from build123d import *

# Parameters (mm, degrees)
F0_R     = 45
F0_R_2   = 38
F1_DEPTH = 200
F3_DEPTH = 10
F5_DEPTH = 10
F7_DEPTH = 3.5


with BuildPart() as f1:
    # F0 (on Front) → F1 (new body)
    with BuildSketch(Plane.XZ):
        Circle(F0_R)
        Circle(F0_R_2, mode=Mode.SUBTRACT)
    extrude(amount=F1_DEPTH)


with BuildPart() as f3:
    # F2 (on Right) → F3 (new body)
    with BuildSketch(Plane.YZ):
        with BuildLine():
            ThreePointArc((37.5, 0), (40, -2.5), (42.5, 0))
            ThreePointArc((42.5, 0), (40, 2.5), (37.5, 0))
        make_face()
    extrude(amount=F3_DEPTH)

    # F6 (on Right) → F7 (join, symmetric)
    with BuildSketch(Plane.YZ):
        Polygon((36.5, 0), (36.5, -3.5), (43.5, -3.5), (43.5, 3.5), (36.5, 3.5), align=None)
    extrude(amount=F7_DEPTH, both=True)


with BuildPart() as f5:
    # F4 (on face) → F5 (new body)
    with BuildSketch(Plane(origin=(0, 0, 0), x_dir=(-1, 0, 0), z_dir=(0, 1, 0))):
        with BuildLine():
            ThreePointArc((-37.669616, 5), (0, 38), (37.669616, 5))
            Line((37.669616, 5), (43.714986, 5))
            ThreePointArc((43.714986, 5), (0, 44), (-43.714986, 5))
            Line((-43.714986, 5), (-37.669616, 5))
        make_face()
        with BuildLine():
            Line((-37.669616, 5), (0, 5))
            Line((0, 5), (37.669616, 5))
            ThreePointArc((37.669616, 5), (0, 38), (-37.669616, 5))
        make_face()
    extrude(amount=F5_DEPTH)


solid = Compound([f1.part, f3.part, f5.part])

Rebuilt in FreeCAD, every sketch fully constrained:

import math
import FreeCAD as App
import Part
import Sketcher

V = App.Vector


def add_polygon(sketch, points):
    """Adds a closed chain of lines whose ends are joined by coincident constraints."""
    first, n = sketch.GeometryCount, len(points)
    for a, b in zip(points, points[1:] + points[:1]):
        sketch.addGeometry(Part.LineSegment(App.Vector(*a, 0), App.Vector(*b, 0)), False)
    for i in range(n):
        sketch.addConstraint(Sketcher.Constraint("Coincident", first + i, 2, first + (i + 1) % n, 1))

doc = App.newDocument("Part")
body = doc.addObject("PartDesign::Body", "Body")

# Sketch on XZ plane
sketch1 = body.newObject("Sketcher::SketchObject", "Sketch")
sketch1.AttachmentSupport = (doc.getObject("XZ_Plane"), [""])
sketch1.MapMode = "FlatFace"
sketch1.addGeometry(Part.Circle(V(0, 0, 0), V(0, 0, 1), 45), False)
sketch1.addGeometry(Part.Circle(V(0, 0, 0), V(0, 0, 1), 38), False)
sketch1.addConstraint(Sketcher.Constraint("Coincident", 0, 3, -1, 1))
sketch1.addConstraint(Sketcher.Constraint("Coincident", 1, 3, -1, 1))
sketch1.addConstraint(Sketcher.Constraint("Diameter", 0, 90.0))
sketch1.addConstraint(Sketcher.Constraint("Diameter", 1, 76.0))
pad1 = body.newObject("PartDesign::Pad", "Pad")
pad1.Profile = sketch1
pad1.Length = 200
body2 = doc.addObject("PartDesign::Body", "Body001")

# Sketch on YZ plane
sketch2 = body2.newObject("Sketcher::SketchObject", "Sketch001")
sketch2.AttachmentSupport = (doc.getObject("YZ_Plane001"), [""])
sketch2.MapMode = "FlatFace"
sketch2.addGeometry(Part.Circle(V(40, 0, 0), V(0, 0, 1), 2.5), False)
sketch2.addConstraint(Sketcher.Constraint("PointOnObject", 0, 3, -1))
sketch2.addConstraint(Sketcher.Constraint("Diameter", 0, 5.0))
sketch2.addConstraint(Sketcher.Constraint("DistanceX", -1, 1, 0, 3, 40.0))
pad2 = body2.newObject("PartDesign::Pad", "Pad001")
pad2.Profile = sketch2
pad2.Length = 10

# Sketch on YZ plane
sketch3 = body2.newObject("Sketcher::SketchObject", "Sketch002")
sketch3.AttachmentSupport = (doc.getObject("YZ_Plane001"), [""])
sketch3.MapMode = "FlatFace"
add_polygon(sketch3, [(36, -4), (44, -4), (44, 4), (36, 4)])  # lines 0-3
sketch3.addConstraint(Sketcher.Constraint("Horizontal", 0))
sketch3.addConstraint(Sketcher.Constraint("Vertical", 1))
sketch3.addConstraint(Sketcher.Constraint("Horizontal", 2))
sketch3.addConstraint(Sketcher.Constraint("Vertical", 3))
sketch3.addConstraint(Sketcher.Constraint("Equal", 2, 1))
sketch3.addConstraint(Sketcher.Constraint("DistanceX", 0, 1, 0, 2, 7.0))
sketch3.addConstraint(Sketcher.Constraint("DistanceX", -1, 1, 0, 2, 43.5))
sketch3.addConstraint(Sketcher.Constraint("DistanceY", 0, 2, -1, 1, 3.5))
pad3 = body2.newObject("PartDesign::Pad", "Pad002")
pad3.Profile = sketch3
pad3.Length = 7
pad3.Midplane = True
body3 = doc.addObject("PartDesign::Body", "Body002")

# Sketch on XZ plane
sketch4 = body3.newObject("Sketcher::SketchObject", "Sketch003")
sketch4.AttachmentSupport = (doc.getObject("XZ_Plane002"), [""])
sketch4.MapMode = "FlatFace"
sketch4.addGeometry(Part.ArcOfCircle(Part.Circle(V(0, 0, 0), V(0, 0, 1), 44), math.radians(7), math.radians(173)), False)
sketch4.addGeometry(Part.LineSegment(V(44, 5, 0), V(-44, 5, 0)), False)
sketch4.addConstraint(Sketcher.Constraint("Coincident", 0, 1, 1, 1))
sketch4.addConstraint(Sketcher.Constraint("Coincident", 1, 2, 0, 2))
sketch4.addConstraint(Sketcher.Constraint("Horizontal", 1))
sketch4.addConstraint(Sketcher.Constraint("Coincident", 0, 3, -1, 1))
sketch4.addConstraint(Sketcher.Constraint("Radius", 0, 44.0))
sketch4.addConstraint(Sketcher.Constraint("DistanceY", -1, 1, 0, 1, 5.0))
pad4 = body3.newObject("PartDesign::Pad", "Pad003")
pad4.Profile = sketch4
pad4.Length = 10
pad4.Reversed = True

doc.recompute()
